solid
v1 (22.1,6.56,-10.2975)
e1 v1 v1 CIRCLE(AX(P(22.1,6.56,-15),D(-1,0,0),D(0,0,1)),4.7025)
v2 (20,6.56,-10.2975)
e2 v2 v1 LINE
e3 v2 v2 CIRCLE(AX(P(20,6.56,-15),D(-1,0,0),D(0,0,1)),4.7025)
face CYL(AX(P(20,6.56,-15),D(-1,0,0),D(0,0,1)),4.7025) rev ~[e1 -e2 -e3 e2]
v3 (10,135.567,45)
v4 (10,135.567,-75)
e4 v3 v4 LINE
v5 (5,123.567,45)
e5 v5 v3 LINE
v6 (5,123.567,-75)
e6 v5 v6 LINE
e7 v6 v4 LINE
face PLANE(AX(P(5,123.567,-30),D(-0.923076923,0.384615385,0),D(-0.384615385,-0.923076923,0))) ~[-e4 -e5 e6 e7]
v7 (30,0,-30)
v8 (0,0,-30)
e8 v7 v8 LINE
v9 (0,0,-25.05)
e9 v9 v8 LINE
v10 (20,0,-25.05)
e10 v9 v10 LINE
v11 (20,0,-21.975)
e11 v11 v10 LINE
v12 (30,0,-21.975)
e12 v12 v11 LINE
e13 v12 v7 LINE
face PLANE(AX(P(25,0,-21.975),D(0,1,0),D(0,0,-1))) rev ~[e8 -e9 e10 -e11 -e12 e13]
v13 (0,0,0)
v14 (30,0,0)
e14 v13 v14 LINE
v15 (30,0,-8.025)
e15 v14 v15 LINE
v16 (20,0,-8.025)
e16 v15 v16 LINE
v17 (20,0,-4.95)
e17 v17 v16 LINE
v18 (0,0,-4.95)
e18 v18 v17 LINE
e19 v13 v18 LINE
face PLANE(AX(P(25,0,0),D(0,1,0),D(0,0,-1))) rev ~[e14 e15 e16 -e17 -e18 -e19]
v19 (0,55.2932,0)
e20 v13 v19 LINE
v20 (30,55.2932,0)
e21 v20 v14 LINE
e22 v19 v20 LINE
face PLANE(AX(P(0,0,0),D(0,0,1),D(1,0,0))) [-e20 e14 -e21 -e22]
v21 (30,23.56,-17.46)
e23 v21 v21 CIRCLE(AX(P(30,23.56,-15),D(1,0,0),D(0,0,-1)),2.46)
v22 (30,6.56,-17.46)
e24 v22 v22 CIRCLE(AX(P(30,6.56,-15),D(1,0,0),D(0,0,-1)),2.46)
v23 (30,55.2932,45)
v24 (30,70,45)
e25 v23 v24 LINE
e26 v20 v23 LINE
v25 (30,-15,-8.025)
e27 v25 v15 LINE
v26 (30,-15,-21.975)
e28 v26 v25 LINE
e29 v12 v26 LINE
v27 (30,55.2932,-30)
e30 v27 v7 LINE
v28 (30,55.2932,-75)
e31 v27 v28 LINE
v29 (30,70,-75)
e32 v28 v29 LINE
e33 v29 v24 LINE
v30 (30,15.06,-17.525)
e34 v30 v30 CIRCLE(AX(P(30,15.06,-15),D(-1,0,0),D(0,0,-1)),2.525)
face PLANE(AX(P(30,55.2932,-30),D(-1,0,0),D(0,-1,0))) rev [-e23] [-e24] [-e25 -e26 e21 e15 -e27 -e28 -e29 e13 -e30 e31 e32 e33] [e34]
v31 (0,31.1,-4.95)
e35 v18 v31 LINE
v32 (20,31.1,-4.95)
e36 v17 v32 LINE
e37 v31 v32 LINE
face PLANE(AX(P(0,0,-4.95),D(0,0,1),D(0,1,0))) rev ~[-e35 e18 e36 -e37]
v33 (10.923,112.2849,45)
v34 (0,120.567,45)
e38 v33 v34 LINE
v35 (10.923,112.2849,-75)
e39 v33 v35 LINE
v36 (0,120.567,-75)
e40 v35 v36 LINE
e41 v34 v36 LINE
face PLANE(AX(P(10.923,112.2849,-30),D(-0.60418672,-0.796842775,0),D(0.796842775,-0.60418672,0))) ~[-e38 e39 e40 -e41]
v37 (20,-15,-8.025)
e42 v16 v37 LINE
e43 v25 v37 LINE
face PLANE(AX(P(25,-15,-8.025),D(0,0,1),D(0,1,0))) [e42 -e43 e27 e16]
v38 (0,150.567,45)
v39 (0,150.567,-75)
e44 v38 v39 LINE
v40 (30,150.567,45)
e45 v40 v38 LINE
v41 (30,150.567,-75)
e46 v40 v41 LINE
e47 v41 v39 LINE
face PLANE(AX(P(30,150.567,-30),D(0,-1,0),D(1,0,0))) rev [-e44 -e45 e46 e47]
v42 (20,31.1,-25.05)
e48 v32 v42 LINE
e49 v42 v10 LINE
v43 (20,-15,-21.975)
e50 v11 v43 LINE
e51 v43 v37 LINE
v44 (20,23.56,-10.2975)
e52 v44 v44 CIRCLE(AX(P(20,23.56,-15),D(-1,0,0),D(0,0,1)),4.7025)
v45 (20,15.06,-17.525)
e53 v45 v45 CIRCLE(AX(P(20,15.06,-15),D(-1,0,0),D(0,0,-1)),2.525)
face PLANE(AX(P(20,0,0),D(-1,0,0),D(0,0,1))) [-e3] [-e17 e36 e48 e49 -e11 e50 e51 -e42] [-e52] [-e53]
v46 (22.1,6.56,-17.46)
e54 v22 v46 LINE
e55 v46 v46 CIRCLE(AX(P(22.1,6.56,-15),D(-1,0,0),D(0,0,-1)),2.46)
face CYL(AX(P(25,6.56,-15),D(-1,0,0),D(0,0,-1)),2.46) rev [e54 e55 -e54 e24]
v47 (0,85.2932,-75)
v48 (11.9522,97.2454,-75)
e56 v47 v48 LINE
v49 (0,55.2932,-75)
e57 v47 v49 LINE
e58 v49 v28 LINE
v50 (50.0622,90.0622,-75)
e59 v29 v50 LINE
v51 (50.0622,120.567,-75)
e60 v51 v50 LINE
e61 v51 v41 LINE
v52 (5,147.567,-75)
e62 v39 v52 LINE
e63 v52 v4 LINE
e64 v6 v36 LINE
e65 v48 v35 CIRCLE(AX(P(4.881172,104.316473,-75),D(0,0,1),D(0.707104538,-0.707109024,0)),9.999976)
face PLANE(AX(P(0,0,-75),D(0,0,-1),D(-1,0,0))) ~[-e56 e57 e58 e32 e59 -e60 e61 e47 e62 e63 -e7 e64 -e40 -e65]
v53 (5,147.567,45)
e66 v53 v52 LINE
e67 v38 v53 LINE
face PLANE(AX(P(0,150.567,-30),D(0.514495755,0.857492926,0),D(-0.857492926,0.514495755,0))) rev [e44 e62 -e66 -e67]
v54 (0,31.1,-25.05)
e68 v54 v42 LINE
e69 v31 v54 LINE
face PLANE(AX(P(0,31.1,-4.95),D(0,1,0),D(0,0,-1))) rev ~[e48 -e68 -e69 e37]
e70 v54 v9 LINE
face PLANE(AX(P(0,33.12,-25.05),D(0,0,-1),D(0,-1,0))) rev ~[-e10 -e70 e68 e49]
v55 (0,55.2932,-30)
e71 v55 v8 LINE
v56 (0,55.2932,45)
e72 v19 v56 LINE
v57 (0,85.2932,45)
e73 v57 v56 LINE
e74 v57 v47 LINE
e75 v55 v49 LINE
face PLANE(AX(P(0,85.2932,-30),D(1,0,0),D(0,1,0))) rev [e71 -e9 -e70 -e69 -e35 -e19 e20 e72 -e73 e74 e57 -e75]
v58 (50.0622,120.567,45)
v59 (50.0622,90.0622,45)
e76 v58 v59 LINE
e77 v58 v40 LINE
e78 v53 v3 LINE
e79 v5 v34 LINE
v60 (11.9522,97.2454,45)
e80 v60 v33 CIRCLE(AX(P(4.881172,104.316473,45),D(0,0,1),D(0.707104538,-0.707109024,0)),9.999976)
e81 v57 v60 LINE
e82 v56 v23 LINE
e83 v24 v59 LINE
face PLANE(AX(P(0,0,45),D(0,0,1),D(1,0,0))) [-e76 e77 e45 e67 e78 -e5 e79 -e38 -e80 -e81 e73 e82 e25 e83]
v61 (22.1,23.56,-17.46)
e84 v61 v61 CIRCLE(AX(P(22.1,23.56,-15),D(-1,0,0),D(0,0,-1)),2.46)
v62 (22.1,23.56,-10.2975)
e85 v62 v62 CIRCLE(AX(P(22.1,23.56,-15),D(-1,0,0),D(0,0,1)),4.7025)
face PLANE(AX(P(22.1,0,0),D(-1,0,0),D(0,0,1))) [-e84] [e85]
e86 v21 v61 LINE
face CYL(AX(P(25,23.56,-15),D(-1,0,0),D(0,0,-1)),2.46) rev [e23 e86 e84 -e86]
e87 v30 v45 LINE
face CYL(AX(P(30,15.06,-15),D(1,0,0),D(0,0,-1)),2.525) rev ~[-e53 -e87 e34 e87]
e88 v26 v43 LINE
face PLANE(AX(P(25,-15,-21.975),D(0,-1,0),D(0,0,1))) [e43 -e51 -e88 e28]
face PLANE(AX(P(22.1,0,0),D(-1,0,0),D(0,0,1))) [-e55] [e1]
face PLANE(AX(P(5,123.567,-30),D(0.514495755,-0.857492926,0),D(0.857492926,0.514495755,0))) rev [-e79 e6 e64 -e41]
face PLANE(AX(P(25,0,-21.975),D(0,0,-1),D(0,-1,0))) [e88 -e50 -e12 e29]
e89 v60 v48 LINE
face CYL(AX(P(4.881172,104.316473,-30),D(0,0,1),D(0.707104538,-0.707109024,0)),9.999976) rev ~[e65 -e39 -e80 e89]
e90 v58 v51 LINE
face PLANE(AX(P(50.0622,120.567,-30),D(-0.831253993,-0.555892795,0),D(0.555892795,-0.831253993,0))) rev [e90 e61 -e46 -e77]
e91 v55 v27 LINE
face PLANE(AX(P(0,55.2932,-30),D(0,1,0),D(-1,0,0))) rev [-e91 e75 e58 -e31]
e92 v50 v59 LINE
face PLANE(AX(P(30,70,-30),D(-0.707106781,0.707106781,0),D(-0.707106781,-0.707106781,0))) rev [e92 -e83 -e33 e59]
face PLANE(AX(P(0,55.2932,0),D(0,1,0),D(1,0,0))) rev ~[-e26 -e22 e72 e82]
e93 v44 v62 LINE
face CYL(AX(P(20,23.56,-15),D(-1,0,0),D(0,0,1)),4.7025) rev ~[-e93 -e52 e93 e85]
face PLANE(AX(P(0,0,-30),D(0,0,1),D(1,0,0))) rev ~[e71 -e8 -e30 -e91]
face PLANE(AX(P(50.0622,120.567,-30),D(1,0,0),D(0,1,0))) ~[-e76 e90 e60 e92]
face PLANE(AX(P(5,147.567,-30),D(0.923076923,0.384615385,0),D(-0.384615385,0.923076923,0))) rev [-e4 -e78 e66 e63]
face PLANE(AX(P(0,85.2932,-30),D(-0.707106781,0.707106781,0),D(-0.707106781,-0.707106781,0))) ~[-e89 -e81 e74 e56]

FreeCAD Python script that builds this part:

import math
import FreeCAD as App
import Part
import Sketcher
from FreeCAD import Vector
Q = App.Units.Quantity


def add_polygon(sketch, points):
    """Adds a closed chain of lines whose ends are joined by coincident constraints."""
    first, n = sketch.GeometryCount, len(points)
    for a, b in zip(points, points[1:] + points[:1]):
        sketch.addGeometry(Part.LineSegment(App.Vector(*a, 0), App.Vector(*b, 0)), False)
    for i in range(n):
        sketch.addConstraint(Sketcher.Constraint("Coincident", first + i, 2, first + (i + 1) % n, 1))

doc = App.newDocument("Part")
params = doc.addObject("Spreadsheet::Sheet", "Params")
for row, (alias, value) in enumerate([
    ("sketch1_width", "25 mm"),
    ("sketch1_height", "40 mm"),
    ("pad1_length", "30 mm"),
    ("sketch2_diameter", "4.92 mm"),
    ("pocket1_length", "30 mm"),
    ("sketch3_height", "20.1 mm"),
    ("sketch3_width", "33.12 mm"),
    ("pocket2_length", "20 mm"),
    ("sketch4_height", "13.95 mm"),
    ("sketch4_width", "5 mm"),
    ("pad2_length", "15 mm"),
    ("sketch5_diameter", "4.92 mm"),
    ("pocket3_length", "2.1 mm"),
    ("sketch6_diameter", "4.92 mm"),
    ("pocket4_length", "10 mm"),
    ("sketch7_diameter", "4.92 mm"),
    ("pocket5_length", "2.1 mm"),
    ("sketch8_diameter", "4.92 mm"),
    ("sketch8_width", "40 mm"),
    ("sketch8_width2", "15 mm"),
    ("sketch8_height", "30 mm"),
    ("sketch8_height2", "13.95 mm"),
    ("pad3_length", "5 mm"),
    ("sketch9_width", "30 mm"),
    ("pad4_length", "30 mm"),
    ("sketch10_diameter", "5.05 mm"),
    ("pocket6_length", "30 mm"),
    ("sketch11_width", "2.02 mm"),
    ("sketch11_height", "20.1 mm"),
    ("pad5_length", "20 mm"),
    ("sketch12_radius", "10 mm"),
    ("sketch12_width", "30 mm"),
    ("sketch12_length", "13 mm"),
    ("sketch12_length2", "36.09 mm"),
    ("pad6_length", "30 mm"),
    ("sketch13_width", "30 mm"),
    ("sketch13_radius", "10 mm"),
    ("sketch13_length", "13 mm"),
    ("sketch13_length2", "36.09 mm"),
    ("pad7_length", "45 mm"),
], start=1):
    params.set(f"A{row}", alias)
    params.set(f"B{row}", "=" + value)
    params.setAlias(f"B{row}", alias)

body = doc.addObject("PartDesign::Body", "Body")

sketch1 = doc.addObject("Sketcher::SketchObject", "Sketch")
body.addObject(sketch1)
sketch1.AttachmentSupport = (doc.XY_Plane, [""])
sketch1.MapMode = "FlatFace"
add_polygon(sketch1, [(0, 40), (0, 0), (25, 0), (25, 40)])
sketch1.addConstraint(Sketcher.Constraint("Vertical", 0))
sketch1.addConstraint(Sketcher.Constraint("Horizontal", 1))
sketch1.addConstraint(Sketcher.Constraint("Vertical", 2))
sketch1.addConstraint(Sketcher.Constraint("Horizontal", 3))
sketch1.addConstraint(Sketcher.Constraint("Coincident", 0, 2, -1, 1))
sketch1.addConstraint(Sketcher.Constraint("DistanceX", 1, 1, 1, 2, 25.0))
sketch1.addConstraint(Sketcher.Constraint("DistanceY", 0, 2, 0, 1, 40.0))
sketch1.setExpression("Constraints[9]", "Params.sketch1_width")
sketch1.setExpression("Constraints[10]", "Params.sketch1_height")
pad1 = doc.addObject("PartDesign::Pad", "Pad")
body.addObject(pad1)
pad1.Profile = sketch1
pad1.setExpression("Length", "Params.pad1_length")
pad1.Reversed = True

sketch2 = doc.addObject("Sketcher::SketchObject", "Sketch001")
body.addObject(sketch2)
sketch2.AttachmentSupport = (doc.YZ_Plane, [""])
sketch2.MapMode = "FlatFace"
sketch2.AttachmentOffset = App.Placement(Vector(0, 0, 25), App.Rotation())
sketch2.addGeometry(Part.Circle(Vector(6.6, -15, 0), Vector(0, 0, 1), 2.5), False)
sketch2.addConstraint(Sketcher.Constraint("Diameter", 0, 4.92))
sketch2.addConstraint(Sketcher.Constraint("DistanceY", 0, 3, -1, 1, 15.0))
sketch2.addConstraint(Sketcher.Constraint("DistanceX", -1, 1, 0, 3, 6.56))
sketch2.setExpression("Constraints[0]", "Params.sketch2_diameter")
pocket1 = doc.addObject("PartDesign::Pocket", "Pocket")
body.addObject(pocket1)
pocket1.Profile = sketch2
pocket1.setExpression("Length", "Params.pocket1_length")

sketch3 = doc.addObject("Sketcher::SketchObject", "Sketch002")
body.addObject(sketch3)
sketch3.AttachmentSupport = (doc.YZ_Plane, [""])
sketch3.MapMode = "FlatFace"
add_polygon(sketch3, [(0, -25), (0, -5), (33, -5), (33, -25)])
sketch3.addConstraint(Sketcher.Constraint("Vertical", 0))
sketch3.addConstraint(Sketcher.Constraint("Horizontal", 1))
sketch3.addConstraint(Sketcher.Constraint("Vertical", 2))
sketch3.addConstraint(Sketcher.Constraint("Horizontal", 3))
sketch3.addConstraint(Sketcher.Constraint("PointOnObject", 0, 2, -2))
sketch3.addConstraint(Sketcher.Constraint("DistanceY", 0, 1, 0, 2, 20.1))
sketch3.addConstraint(Sketcher.Constraint("DistanceX", 1, 1, 1, 2, 33.12))
sketch3.addConstraint(Sketcher.Constraint("DistanceY", 0, 2, -1, 1, 4.95))
sketch3.setExpression("Constraints[9]", "Params.sketch3_height")
sketch3.setExpression("Constraints[10]", "Params.sketch3_width")
pocket2 = doc.addObject("PartDesign::Pocket", "Pocket001")
body.addObject(pocket2)
pocket2.Profile = sketch3
pocket2.setExpression("Length", "Params.pocket2_length")
pocket2.Reversed = True

sketch4 = doc.addObject("Sketcher::SketchObject", "Sketch003")
body.addObject(sketch4)
sketch4.AttachmentSupport = (doc.XZ_Plane, [""])
sketch4.MapMode = "FlatFace"
add_polygon(sketch4, [(25, -8), (20, -8), (20, -22), (25, -22)])
sketch4.addConstraint(Sketcher.Constraint("Horizontal", 0))
sketch4.addConstraint(Sketcher.Constraint("Vertical", 1))
sketch4.addConstraint(Sketcher.Constraint("Horizontal", 2))
sketch4.addConstraint(Sketcher.Constraint("Vertical", 3))
sketch4.addConstraint(Sketcher.Constraint("DistanceY", 1, 2, 1, 1, 13.95))
sketch4.addConstraint(Sketcher.Constraint("DistanceX", 0, 2, 0, 1, 5.0))
sketch4.addConstraint(Sketcher.Constraint("DistanceX", -1, 1, 0, 2, 20.0))
sketch4.addConstraint(Sketcher.Constraint("DistanceY", 0, 2, -1, 1, 8.025))
sketch4.setExpression("Constraints[8]", "Params.sketch4_height")
sketch4.setExpression("Constraints[9]", "Params.sketch4_width")
pad2 = doc.addObject("PartDesign::Pad", "Pad001")
body.addObject(pad2)
pad2.Profile = sketch4
pad2.setExpression("Length", "Params.pad2_length")

sketch5 = doc.addObject("Sketcher::SketchObject", "Sketch004")
body.addObject(sketch5)
sketch5.AttachmentSupport = (doc.YZ_Plane, [""])
sketch5.MapMode = "FlatFace"
sketch5.AttachmentOffset = App.Placement(Vector(0, 0, 20), App.Rotation())
sketch5.addGeometry(Part.Circle(Vector(6.6, -15, 0), Vector(0, 0, 1), 4.7), False)
sketch5.addGeometry(Part.Circle(Vector(6.6, -15, 0), Vector(0, 0, 1), 2.5), False)
sketch5.addConstraint(Sketcher.Constraint("Coincident", 1, 3, 0, 3))
sketch5.addConstraint(Sketcher.Constraint("Diameter", 0, 9.405))
sketch5.addConstraint(Sketcher.Constraint("Diameter", 1, 4.92))
sketch5.addConstraint(Sketcher.Constraint("DistanceY", 0, 3, -1, 1, 15.0))
sketch5.addConstraint(Sketcher.Constraint("DistanceX", -1, 1, 0, 3, 6.56))
sketch5.setExpression("Constraints[2]", "Params.sketch5_diameter")
pocket3 = doc.addObject("PartDesign::Pocket", "Pocket002")
body.addObject(pocket3)
pocket3.Profile = sketch5
pocket3.setExpression("Length", "Params.pocket3_length")
pocket3.Reversed = True

sketch6 = doc.addObject("Sketcher::SketchObject", "Sketch005")
body.addObject(sketch6)
sketch6.AttachmentSupport = (doc.YZ_Plane, [""])
sketch6.MapMode = "FlatFace"
sketch6.AttachmentOffset = App.Placement(Vector(0, 0, 25), App.Rotation())
sketch6.addGeometry(Part.Circle(Vector(23.6, -15, 0), Vector(0, 0, 1), 2.5), False)
sketch6.addConstraint(Sketcher.Constraint("Diameter", 0, 4.92))
sketch6.addConstraint(Sketcher.Constraint("DistanceY", 0, 3, -1, 1, 15.0))
sketch6.addConstraint(Sketcher.Constraint("DistanceX", -1, 1, 0, 3, 23.56))
sketch6.setExpression("Constraints[0]", "Params.sketch6_diameter")
pocket4 = doc.addObject("PartDesign::Pocket", "Pocket003")
body.addObject(pocket4)
pocket4.Profile = sketch6
pocket4.setExpression("Length", "Params.pocket4_length")

sketch7 = doc.addObject("Sketcher::SketchObject", "Sketch006")
body.addObject(sketch7)
sketch7.AttachmentSupport = (doc.YZ_Plane, [""])
sketch7.MapMode = "FlatFace"
sketch7.AttachmentOffset = App.Placement(Vector(0, 0, 20), App.Rotation())
sketch7.addGeometry(Part.Circle(Vector(23.6, -15, 0), Vector(0, 0, 1), 4.7), False)
sketch7.addGeometry(Part.Circle(Vector(23.6, -15, 0), Vector(0, 0, 1), 2.5), False)
sketch7.addConstraint(Sketcher.Constraint("Coincident", 1, 3, 0, 3))
sketch7.addConstraint(Sketcher.Constraint("Diameter", 0, 9.405))
sketch7.addConstraint(Sketcher.Constraint("Diameter", 1, 4.92))
sketch7.addConstraint(Sketcher.Constraint("DistanceY", 0, 3, -1, 1, 15.0))
sketch7.addConstraint(Sketcher.Constraint("DistanceX", -1, 1, 0, 3, 23.56))
sketch7.setExpression("Constraints[2]", "Params.sketch7_diameter")
pocket5 = doc.addObject("PartDesign::Pocket", "Pocket004")
body.addObject(pocket5)
pocket5.Profile = sketch7
pocket5.setExpression("Length", "Params.pocket5_length")
pocket5.Reversed = True

sketch8 = doc.addObject("Sketcher::SketchObject", "Sketch007")
body.addObject(sketch8)
sketch8.AttachmentSupport = (doc.YZ_Plane, [""])
sketch8.MapMode = "FlatFace"
sketch8.AttachmentOffset = App.Placement(Vector(0, 0, 25), App.Rotation())
add_polygon(sketch8, [(0, -30), (40, -30), (40, 0), (0, 0), (0, -8), (-15, -8), (-15, -22), (0, -22)])
sketch8.addGeometry(Part.Circle(Vector(6.6, -15, 0), Vector(0, 0, 1), 2.5), False)
sketch8.addGeometry(Part.Circle(Vector(23.6, -15, 0), Vector(0, 0, 1), 2.5), False)
sketch8.addConstraint(Sketcher.Constraint("Horizontal", 0))
sketch8.addConstraint(Sketcher.Constraint("Vertical", 1))
sketch8.addConstraint(Sketcher.Constraint("Horizontal", 2))
sketch8.addConstraint(Sketcher.Constraint("Vertical", 3))
sketch8.addConstraint(Sketcher.Constraint("Horizontal", 4))
sketch8.addConstraint(Sketcher.Constraint("Vertical", 5))
sketch8.addConstraint(Sketcher.Constraint("Horizontal", 6))
sketch8.addConstraint(Sketcher.Constraint("Vertical", 7))
sketch8.addConstraint(Sketcher.Constraint("Coincident", 2, 2, -1, 1))
sketch8.addConstraint(Sketcher.Constraint("Equal", 8, 9))
sketch8.addConstraint(Sketcher.Constraint("PointOnObject", 6, 2, -2))
sketch8.addConstraint(Sketcher.Constraint("Horizontal", 8, 3, 9, 3))
sketch8.addConstraint(Sketcher.Constraint("Equal", 3, 7))
sketch8.addConstraint(Sketcher.Constraint("Diameter", 8, 4.92))
sketch8.addConstraint(Sketcher.Constraint("DistanceX", 0, 1, 0, 2, 40.0))
sketch8.addConstraint(Sketcher.Constraint("DistanceX", 4, 2, 4, 1, 15.0))
sketch8.addConstraint(Sketcher.Constraint("DistanceY", 1, 1, 1, 2, 30.0))
sketch8.addConstraint(Sketcher.Constraint("DistanceY", 8, 3, -1, 1, 15.0))
sketch8.addConstraint(Sketcher.Constraint("DistanceX", 8, 3, 9, 3, 17.0))
sketch8.addConstraint(Sketcher.Constraint("DistanceY", 5, 2, 5, 1, 13.95))
sketch8.addConstraint(Sketcher.Constraint("DistanceX", -1, 1, 8, 3, 6.56))
sketch8.setExpression("Constraints[21]", "Params.sketch8_diameter")
sketch8.setExpression("Constraints[22]", "Params.sketch8_width")
sketch8.setExpression("Constraints[23]", "Params.sketch8_width2")
sketch8.setExpression("Constraints[24]", "Params.sketch8_height")
sketch8.setExpression("Constraints[27]", "Params.sketch8_height2")
pad3 = doc.addObject("PartDesign::Pad", "Pad002")
body.addObject(pad3)
pad3.Profile = sketch8
pad3.setExpression("Length", "Params.pad3_length")

sketch9 = doc.addObject("Sketcher::SketchObject", "Sketch008")
body.addObject(sketch9)
sketch9.AttachmentSupport = (doc.XZ_Plane, [""])
sketch9.MapMode = "FlatFace"
sketch9.AttachmentOffset = App.Placement(Vector(0, 0, -40), App.Rotation())
add_polygon(sketch9, [(30, -30), (0, -30), (0, 0), (30, 0)])
sketch9.addConstraint(Sketcher.Constraint("Horizontal", 0))
sketch9.addConstraint(Sketcher.Constraint("Vertical", 1))
sketch9.addConstraint(Sketcher.Constraint("Horizontal", 2))
sketch9.addConstraint(Sketcher.Constraint("Vertical", 3))
sketch9.addConstraint(Sketcher.Constraint("Coincident", 1, 2, -1, 1))
sketch9.addConstraint(Sketcher.Constraint("Equal", 2, 1))
sketch9.addConstraint(Sketcher.Constraint("DistanceX", 0, 2, 0, 1, 30.0))
sketch9.setExpression("Constraints[10]", "Params.sketch9_width")
pad4 = doc.addObject("PartDesign::Pad", "Pad003")
body.addObject(pad4)
pad4.Profile = sketch9
pad4.setExpression("Length", "Params.pad4_length")
pad4.Reversed = True

sketch10 = doc.addObject("Sketcher::SketchObject", "Sketch009")
body.addObject(sketch10)
sketch10.AttachmentSupport = (doc.YZ_Plane, [""])
sketch10.MapMode = "FlatFace"
sketch10.AttachmentOffset = App.Placement(Vector(0, 0, 30), App.Rotation())
sketch10.addGeometry(Part.Circle(Vector(15.1, -15, 0), Vector(0, 0, 1), 2.5), False)
sketch10.addConstraint(Sketcher.Constraint("Diameter", 0, 5.05))
sketch10.addConstraint(Sketcher.Constraint("DistanceY", 0, 3, -1, 1, 15.0))
sketch10.addConstraint(Sketcher.Constraint("DistanceX", -1, 1, 0, 3, 15.06))
sketch10.setExpression("Constraints[0]", "Params.sketch10_diameter")
pocket6 = doc.addObject("PartDesign::Pocket", "Pocket005")
body.addObject(pocket6)
pocket6.Profile = sketch10
pocket6.setExpression("Length", "Params.pocket6_length")

sketch11 = doc.addObject("Sketcher::SketchObject", "Sketch010")
body.addObject(sketch11)
sketch11.AttachmentSupport = (doc.YZ_Plane, [""])
sketch11.MapMode = "FlatFace"
add_polygon(sketch11, [(33.1, -5), (33.1, -25.1), (31.1, -25.1), (31.1, -5)])
sketch11.addConstraint(Sketcher.Constraint("Vertical", 0))
sketch11.addConstraint(Sketcher.Constraint("Horizontal", 1))
sketch11.addConstraint(Sketcher.Constraint("Vertical", 2))
sketch11.addConstraint(Sketcher.Constraint("Horizontal", 3))
sketch11.addConstraint(Sketcher.Constraint("DistanceX", 1, 2, 1, 1, 2.02))
sketch11.addConstraint(Sketcher.Constraint("DistanceY", 0, 2, 0, 1, 20.1))
sketch11.addConstraint(Sketcher.Constraint("DistanceX", -1, 1, 1, 2, 31.1))
sketch11.addConstraint(Sketcher.Constraint("DistanceY", 0, 2, -1, 1, 25.05))
sketch11.setExpression("Constraints[8]", "Params.sketch11_width")
sketch11.setExpression("Constraints[9]", "Params.sketch11_height")
pad5 = doc.addObject("PartDesign::Pad", "Pad004")
body.addObject(pad5)
pad5.Profile = sketch11
pad5.setExpression("Length", "Params.pad5_length")

sketch12 = doc.addObject("Sketcher::SketchObject", "Sketch011")
body.addObject(sketch12)
sketch12.AttachmentSupport = (doc.XY_Plane, [""])
sketch12.MapMode = "FlatFace"
sketch12.addGeometry(Part.LineSegment(Vector(0, 85, 0), Vector(0, 70, 0)), False)
sketch12.addGeometry(Part.LineSegment(Vector(0, 70, 0), Vector(30, 70, 0)), False)
sketch12.addGeometry(Part.LineSegment(Vector(30, 70, 0), Vector(50, 90, 0)), False)
sketch12.addGeometry(Part.LineSegment(Vector(50, 90, 0), Vector(50, 121, 0)), False)
sketch12.addGeometry(Part.LineSegment(Vector(50, 121, 0), Vector(30, 151, 0)), False)
sketch12.addGeometry(Part.LineSegment(Vector(30, 151, 0), Vector(0, 151, 0)), False)
sketch12.addGeometry(Part.LineSegment(Vector(0, 151, 0), Vector(5, 148, 0)), False)
sketch12.addGeometry(Part.LineSegment(Vector(5, 148, 0), Vector(10, 136, 0)), False)
sketch12.addGeometry(Part.LineSegment(Vector(10, 136, 0), Vector(5, 124, 0)), False)
sketch12.addGeometry(Part.LineSegment(Vector(5, 124, 0), Vector(0, 121, 0)), False)
sketch12.addGeometry(Part.LineSegment(Vector(0, 121, 0), Vector(11, 112, 0)), False)
sketch12.addGeometry(Part.ArcOfCircle(Part.Circle(Vector(5, 104, 0), Vector(0, 0, 1), 10), math.radians(-45), math.radians(53)), False)
sketch12.addGeometry(Part.LineSegment(Vector(12, 97, 0), Vector(0, 85, 0)), False)
sketch12.addConstraint(Sketcher.Constraint("Coincident", 0, 2, 1, 1))
sketch12.addConstraint(Sketcher.Constraint("Coincident", 1, 2, 2, 1))
sketch12.addConstraint(Sketcher.Constraint("Coincident", 2, 2, 3, 1))
sketch12.addConstraint(Sketcher.Constraint("Coincident", 3, 2, 4, 1))
sketch12.addConstraint(Sketcher.Constraint("Coincident", 4, 2, 5, 1))
sketch12.addConstraint(Sketcher.Constraint("Coincident", 5, 2, 6, 1))
sketch12.addConstraint(Sketcher.Constraint("Coincident", 6, 2, 7, 1))
sketch12.addConstraint(Sketcher.Constraint("Coincident", 7, 2, 8, 1))
sketch12.addConstraint(Sketcher.Constraint("Coincident", 8, 2, 9, 1))
sketch12.addConstraint(Sketcher.Constraint("Coincident", 9, 2, 10, 1))
sketch12.addConstraint(Sketcher.Constraint("Tangent", 10, 2, 11, 2))
sketch12.addConstraint(Sketcher.Constraint("Tangent", 11, 1, 12, 1))
sketch12.addConstraint(Sketcher.Constraint("Coincident", 12, 2, 0, 1))
sketch12.addConstraint(Sketcher.Constraint("Vertical", 0))
sketch12.addConstraint(Sketcher.Constraint("Horizontal", 1))
sketch12.addConstraint(Sketcher.Constraint("Vertical", 3))
sketch12.addConstraint(Sketcher.Constraint("Horizontal", 5))
sketch12.addConstraint(Sketcher.Constraint("PointOnObject", 0, 2, -2))
sketch12.addConstraint(Sketcher.Constraint("PointOnObject", 5, 2, -2))
sketch12.addConstraint(Sketcher.Constraint("PointOnObject", 9, 2, -2))
sketch12.addConstraint(Sketcher.Constraint("Parallel", 2, 12))
sketch12.addConstraint(Sketcher.Constraint("Horizontal", 3, 2, 9, 2))
sketch12.addConstraint(Sketcher.Constraint("Vertical", 1, 2, 4, 2))
sketch12.addConstraint(Sketcher.Constraint("Vertical", 6, 2, 8, 2))
sketch12.addConstraint(Sketcher.Constraint("Equal", 7, 8))
sketch12.addConstraint(Sketcher.Constraint("Equal", 6, 9))
sketch12.addConstraint(Sketcher.Constraint("Radius", 11, 10.0))
sketch12.addConstraint(Sketcher.Constraint("Angle", 2, Q("45 deg")))
sketch12.addConstraint(Sketcher.Constraint("DistanceX", -1, 1, 7, 2, 10.0))
sketch12.addConstraint(Sketcher.Constraint("DistanceX", 1, 1, 1, 2, 30.0))
sketch12.addConstraint(Sketcher.Constraint("Distance", 7, 13.0))
sketch12.addConstraint(Sketcher.Constraint("DistanceY", -1, 1, 0, 2, 70.0))
sketch12.addConstraint(Sketcher.Constraint("DistanceX", -1, 1, 6, 2, 5.0))
sketch12.addConstraint(Sketcher.Constraint("DistanceY", 3, 2, 4, 2, 30.0))
sketch12.addConstraint(Sketcher.Constraint("Angle", 10, Q("-37.1703 deg")))
sketch12.addConstraint(Sketcher.Constraint("Distance", 4, 36.09))
sketch12.addConstraint(Sketcher.Constraint("Distance", 12, 16.903))
sketch12.addConstraint(Sketcher.Constraint("DistanceY", 0, 2, 0, 1, 15.2932))
sketch12.setExpression("Constraints[26]", "Params.sketch12_radius")
sketch12.setExpression("Constraints[29]", "Params.sketch12_width")
sketch12.setExpression("Constraints[30]", "Params.sketch12_length")
sketch12.setExpression("Constraints[35]", "Params.sketch12_length2")
pad6 = doc.addObject("PartDesign::Pad", "Pad005")
body.addObject(pad6)
pad6.Profile = sketch12
pad6.setExpression("Length", "Params.pad6_length")
pad6.Reversed = True

sketch13 = doc.addObject("Sketcher::SketchObject", "Sketch012")
body.addObject(sketch13)
sketch13.AttachmentSupport = (doc.XY_Plane, [""])
sketch13.MapMode = "FlatFace"
sketch13.addGeometry(Part.LineSegment(Vector(0, 55, 0), Vector(30, 55, 0)), False)
sketch13.addGeometry(Part.LineSegment(Vector(30, 55, 0), Vector(30, 70, 0)), False)
sketch13.addGeometry(Part.LineSegment(Vector(30, 70, 0), Vector(50, 90, 0)), False)
sketch13.addGeometry(Part.LineSegment(Vector(50, 90, 0), Vector(50, 121, 0)), False)
sketch13.addGeometry(Part.LineSegment(Vector(50, 121, 0), Vector(30, 151, 0)), False)
sketch13.addGeometry(Part.LineSegment(Vector(30, 151, 0), Vector(0, 151, 0)), False)
sketch13.addGeometry(Part.LineSegment(Vector(0, 151, 0), Vector(5, 148, 0)), False)
sketch13.addGeometry(Part.LineSegment(Vector(5, 148, 0), Vector(10, 136, 0)), False)
sketch13.addGeometry(Part.LineSegment(Vector(10, 136, 0), Vector(5, 124, 0)), False)
sketch13.addGeometry(Part.LineSegment(Vector(5, 124, 0), Vector(0, 121, 0)), False)
sketch13.addGeometry(Part.LineSegment(Vector(0, 121, 0), Vector(11, 112, 0)), False)
sketch13.addGeometry(Part.ArcOfCircle(Part.Circle(Vector(5, 104, 0), Vector(0, 0, 1), 10), math.radians(-45), math.radians(53)), False)
sketch13.addGeometry(Part.LineSegment(Vector(12, 97, 0), Vector(0, 85, 0)), False)
sketch13.addGeometry(Part.LineSegment(Vector(0, 85, 0), Vector(0, 55, 0)), False)
sketch13.addConstraint(Sketcher.Constraint("Coincident", 0, 2, 1, 1))
sketch13.addConstraint(Sketcher.Constraint("Coincident", 1, 2, 2, 1))
sketch13.addConstraint(Sketcher.Constraint("Coincident", 2, 2, 3, 1))
sketch13.addConstraint(Sketcher.Constraint("Coincident", 3, 2, 4, 1))
sketch13.addConstraint(Sketcher.Constraint("Coincident", 4, 2, 5, 1))
sketch13.addConstraint(Sketcher.Constraint("Coincident", 5, 2, 6, 1))
sketch13.addConstraint(Sketcher.Constraint("Coincident", 6, 2, 7, 1))
sketch13.addConstraint(Sketcher.Constraint("Coincident", 7, 2, 8, 1))
sketch13.addConstraint(Sketcher.Constraint("Coincident", 8, 2, 9, 1))
sketch13.addConstraint(Sketcher.Constraint("Coincident", 9, 2, 10, 1))
sketch13.addConstraint(Sketcher.Constraint("Tangent", 10, 2, 11, 2))
sketch13.addConstraint(Sketcher.Constraint("Tangent", 11, 1, 12, 1))
sketch13.addConstraint(Sketcher.Constraint("Coincident", 12, 2, 13, 1))
sketch13.addConstraint(Sketcher.Constraint("Coincident", 13, 2, 0, 1))
sketch13.addConstraint(Sketcher.Constraint("Horizontal", 0))
sketch13.addConstraint(Sketcher.Constraint("Vertical", 1))
sketch13.addConstraint(Sketcher.Constraint("Vertical", 3))
sketch13.addConstraint(Sketcher.Constraint("Horizontal", 5))
sketch13.addConstraint(Sketcher.Constraint("Vertical", 13))
sketch13.addConstraint(Sketcher.Constraint("PointOnObject", 5, 2, -2))
sketch13.addConstraint(Sketcher.Constraint("PointOnObject", 9, 2, -2))
sketch13.addConstraint(Sketcher.Constraint("PointOnObject", 12, 2, -2))
sketch13.addConstraint(Sketcher.Constraint("Parallel", 2, 12))
sketch13.addConstraint(Sketcher.Constraint("Horizontal", 3, 2, 9, 2))
sketch13.addConstraint(Sketcher.Constraint("Vertical", 1, 2, 4, 2))
sketch13.addConstraint(Sketcher.Constraint("Vertical", 6, 2, 8, 2))
sketch13.addConstraint(Sketcher.Constraint("Equal", 5, 13))
sketch13.addConstraint(Sketcher.Constraint("Equal", 7, 8))
sketch13.addConstraint(Sketcher.Constraint("Equal", 6, 9))
sketch13.addConstraint(Sketcher.Constraint("DistanceX", 0, 1, 0, 2, 30.0))
sketch13.addConstraint(Sketcher.Constraint("Radius", 11, 10.0))
sketch13.addConstraint(Sketcher.Constraint("DistanceY", 3, 2, 4, 2, 30.0))
sketch13.addConstraint(Sketcher.Constraint("Angle", 2, Q("45 deg")))
sketch13.addConstraint(Sketcher.Constraint("Distance", 7, 13.0))
sketch13.addConstraint(Sketcher.Constraint("DistanceY", -1, 1, 1, 2, 70.0))
sketch13.addConstraint(Sketcher.Constraint("DistanceX", -1, 1, 6, 2, 5.0))
sketch13.addConstraint(Sketcher.Constraint("DistanceX", -1, 1, 7, 2, 10.0))
sketch13.addConstraint(Sketcher.Constraint("Angle", 10, Q("-37.1703 deg")))
sketch13.addConstraint(Sketcher.Constraint("Distance", 4, 36.09))
sketch13.addConstraint(Sketcher.Constraint("Distance", 12, 16.903))
sketch13.addConstraint(Sketcher.Constraint("DistanceY", 1, 1, 1, 2, 14.7068))
sketch13.setExpression("Constraints[29]", "Params.sketch13_width")
sketch13.setExpression("Constraints[30]", "Params.sketch13_radius")
sketch13.setExpression("Constraints[33]", "Params.sketch13_length")
sketch13.setExpression("Constraints[38]", "Params.sketch13_length2")
pad7 = doc.addObject("PartDesign::Pad", "Pad006")
body.addObject(pad7)
pad7.Profile = sketch13
pad7.setExpression("Length", "Params.pad7_length")
doc.recompute()

datumplane = doc.addObject("PartDesign::Plane", "DatumPlane")
body.addObject(datumplane)
datumplane.AttachmentSupport = (doc.XY_Plane, [""])
datumplane.MapMode = "FlatFace"
datumplane.AttachmentOffset = App.Placement(Vector(0, 0, -15), App.Rotation())
mirrored = doc.addObject("PartDesign::Mirrored", "Mirrored")
body.addObject(mirrored)
mirrored.Originals = [pad7]
mirrored.MirrorPlane = (datumplane, [""])
body.Tip = mirrored

doc.recompute()
